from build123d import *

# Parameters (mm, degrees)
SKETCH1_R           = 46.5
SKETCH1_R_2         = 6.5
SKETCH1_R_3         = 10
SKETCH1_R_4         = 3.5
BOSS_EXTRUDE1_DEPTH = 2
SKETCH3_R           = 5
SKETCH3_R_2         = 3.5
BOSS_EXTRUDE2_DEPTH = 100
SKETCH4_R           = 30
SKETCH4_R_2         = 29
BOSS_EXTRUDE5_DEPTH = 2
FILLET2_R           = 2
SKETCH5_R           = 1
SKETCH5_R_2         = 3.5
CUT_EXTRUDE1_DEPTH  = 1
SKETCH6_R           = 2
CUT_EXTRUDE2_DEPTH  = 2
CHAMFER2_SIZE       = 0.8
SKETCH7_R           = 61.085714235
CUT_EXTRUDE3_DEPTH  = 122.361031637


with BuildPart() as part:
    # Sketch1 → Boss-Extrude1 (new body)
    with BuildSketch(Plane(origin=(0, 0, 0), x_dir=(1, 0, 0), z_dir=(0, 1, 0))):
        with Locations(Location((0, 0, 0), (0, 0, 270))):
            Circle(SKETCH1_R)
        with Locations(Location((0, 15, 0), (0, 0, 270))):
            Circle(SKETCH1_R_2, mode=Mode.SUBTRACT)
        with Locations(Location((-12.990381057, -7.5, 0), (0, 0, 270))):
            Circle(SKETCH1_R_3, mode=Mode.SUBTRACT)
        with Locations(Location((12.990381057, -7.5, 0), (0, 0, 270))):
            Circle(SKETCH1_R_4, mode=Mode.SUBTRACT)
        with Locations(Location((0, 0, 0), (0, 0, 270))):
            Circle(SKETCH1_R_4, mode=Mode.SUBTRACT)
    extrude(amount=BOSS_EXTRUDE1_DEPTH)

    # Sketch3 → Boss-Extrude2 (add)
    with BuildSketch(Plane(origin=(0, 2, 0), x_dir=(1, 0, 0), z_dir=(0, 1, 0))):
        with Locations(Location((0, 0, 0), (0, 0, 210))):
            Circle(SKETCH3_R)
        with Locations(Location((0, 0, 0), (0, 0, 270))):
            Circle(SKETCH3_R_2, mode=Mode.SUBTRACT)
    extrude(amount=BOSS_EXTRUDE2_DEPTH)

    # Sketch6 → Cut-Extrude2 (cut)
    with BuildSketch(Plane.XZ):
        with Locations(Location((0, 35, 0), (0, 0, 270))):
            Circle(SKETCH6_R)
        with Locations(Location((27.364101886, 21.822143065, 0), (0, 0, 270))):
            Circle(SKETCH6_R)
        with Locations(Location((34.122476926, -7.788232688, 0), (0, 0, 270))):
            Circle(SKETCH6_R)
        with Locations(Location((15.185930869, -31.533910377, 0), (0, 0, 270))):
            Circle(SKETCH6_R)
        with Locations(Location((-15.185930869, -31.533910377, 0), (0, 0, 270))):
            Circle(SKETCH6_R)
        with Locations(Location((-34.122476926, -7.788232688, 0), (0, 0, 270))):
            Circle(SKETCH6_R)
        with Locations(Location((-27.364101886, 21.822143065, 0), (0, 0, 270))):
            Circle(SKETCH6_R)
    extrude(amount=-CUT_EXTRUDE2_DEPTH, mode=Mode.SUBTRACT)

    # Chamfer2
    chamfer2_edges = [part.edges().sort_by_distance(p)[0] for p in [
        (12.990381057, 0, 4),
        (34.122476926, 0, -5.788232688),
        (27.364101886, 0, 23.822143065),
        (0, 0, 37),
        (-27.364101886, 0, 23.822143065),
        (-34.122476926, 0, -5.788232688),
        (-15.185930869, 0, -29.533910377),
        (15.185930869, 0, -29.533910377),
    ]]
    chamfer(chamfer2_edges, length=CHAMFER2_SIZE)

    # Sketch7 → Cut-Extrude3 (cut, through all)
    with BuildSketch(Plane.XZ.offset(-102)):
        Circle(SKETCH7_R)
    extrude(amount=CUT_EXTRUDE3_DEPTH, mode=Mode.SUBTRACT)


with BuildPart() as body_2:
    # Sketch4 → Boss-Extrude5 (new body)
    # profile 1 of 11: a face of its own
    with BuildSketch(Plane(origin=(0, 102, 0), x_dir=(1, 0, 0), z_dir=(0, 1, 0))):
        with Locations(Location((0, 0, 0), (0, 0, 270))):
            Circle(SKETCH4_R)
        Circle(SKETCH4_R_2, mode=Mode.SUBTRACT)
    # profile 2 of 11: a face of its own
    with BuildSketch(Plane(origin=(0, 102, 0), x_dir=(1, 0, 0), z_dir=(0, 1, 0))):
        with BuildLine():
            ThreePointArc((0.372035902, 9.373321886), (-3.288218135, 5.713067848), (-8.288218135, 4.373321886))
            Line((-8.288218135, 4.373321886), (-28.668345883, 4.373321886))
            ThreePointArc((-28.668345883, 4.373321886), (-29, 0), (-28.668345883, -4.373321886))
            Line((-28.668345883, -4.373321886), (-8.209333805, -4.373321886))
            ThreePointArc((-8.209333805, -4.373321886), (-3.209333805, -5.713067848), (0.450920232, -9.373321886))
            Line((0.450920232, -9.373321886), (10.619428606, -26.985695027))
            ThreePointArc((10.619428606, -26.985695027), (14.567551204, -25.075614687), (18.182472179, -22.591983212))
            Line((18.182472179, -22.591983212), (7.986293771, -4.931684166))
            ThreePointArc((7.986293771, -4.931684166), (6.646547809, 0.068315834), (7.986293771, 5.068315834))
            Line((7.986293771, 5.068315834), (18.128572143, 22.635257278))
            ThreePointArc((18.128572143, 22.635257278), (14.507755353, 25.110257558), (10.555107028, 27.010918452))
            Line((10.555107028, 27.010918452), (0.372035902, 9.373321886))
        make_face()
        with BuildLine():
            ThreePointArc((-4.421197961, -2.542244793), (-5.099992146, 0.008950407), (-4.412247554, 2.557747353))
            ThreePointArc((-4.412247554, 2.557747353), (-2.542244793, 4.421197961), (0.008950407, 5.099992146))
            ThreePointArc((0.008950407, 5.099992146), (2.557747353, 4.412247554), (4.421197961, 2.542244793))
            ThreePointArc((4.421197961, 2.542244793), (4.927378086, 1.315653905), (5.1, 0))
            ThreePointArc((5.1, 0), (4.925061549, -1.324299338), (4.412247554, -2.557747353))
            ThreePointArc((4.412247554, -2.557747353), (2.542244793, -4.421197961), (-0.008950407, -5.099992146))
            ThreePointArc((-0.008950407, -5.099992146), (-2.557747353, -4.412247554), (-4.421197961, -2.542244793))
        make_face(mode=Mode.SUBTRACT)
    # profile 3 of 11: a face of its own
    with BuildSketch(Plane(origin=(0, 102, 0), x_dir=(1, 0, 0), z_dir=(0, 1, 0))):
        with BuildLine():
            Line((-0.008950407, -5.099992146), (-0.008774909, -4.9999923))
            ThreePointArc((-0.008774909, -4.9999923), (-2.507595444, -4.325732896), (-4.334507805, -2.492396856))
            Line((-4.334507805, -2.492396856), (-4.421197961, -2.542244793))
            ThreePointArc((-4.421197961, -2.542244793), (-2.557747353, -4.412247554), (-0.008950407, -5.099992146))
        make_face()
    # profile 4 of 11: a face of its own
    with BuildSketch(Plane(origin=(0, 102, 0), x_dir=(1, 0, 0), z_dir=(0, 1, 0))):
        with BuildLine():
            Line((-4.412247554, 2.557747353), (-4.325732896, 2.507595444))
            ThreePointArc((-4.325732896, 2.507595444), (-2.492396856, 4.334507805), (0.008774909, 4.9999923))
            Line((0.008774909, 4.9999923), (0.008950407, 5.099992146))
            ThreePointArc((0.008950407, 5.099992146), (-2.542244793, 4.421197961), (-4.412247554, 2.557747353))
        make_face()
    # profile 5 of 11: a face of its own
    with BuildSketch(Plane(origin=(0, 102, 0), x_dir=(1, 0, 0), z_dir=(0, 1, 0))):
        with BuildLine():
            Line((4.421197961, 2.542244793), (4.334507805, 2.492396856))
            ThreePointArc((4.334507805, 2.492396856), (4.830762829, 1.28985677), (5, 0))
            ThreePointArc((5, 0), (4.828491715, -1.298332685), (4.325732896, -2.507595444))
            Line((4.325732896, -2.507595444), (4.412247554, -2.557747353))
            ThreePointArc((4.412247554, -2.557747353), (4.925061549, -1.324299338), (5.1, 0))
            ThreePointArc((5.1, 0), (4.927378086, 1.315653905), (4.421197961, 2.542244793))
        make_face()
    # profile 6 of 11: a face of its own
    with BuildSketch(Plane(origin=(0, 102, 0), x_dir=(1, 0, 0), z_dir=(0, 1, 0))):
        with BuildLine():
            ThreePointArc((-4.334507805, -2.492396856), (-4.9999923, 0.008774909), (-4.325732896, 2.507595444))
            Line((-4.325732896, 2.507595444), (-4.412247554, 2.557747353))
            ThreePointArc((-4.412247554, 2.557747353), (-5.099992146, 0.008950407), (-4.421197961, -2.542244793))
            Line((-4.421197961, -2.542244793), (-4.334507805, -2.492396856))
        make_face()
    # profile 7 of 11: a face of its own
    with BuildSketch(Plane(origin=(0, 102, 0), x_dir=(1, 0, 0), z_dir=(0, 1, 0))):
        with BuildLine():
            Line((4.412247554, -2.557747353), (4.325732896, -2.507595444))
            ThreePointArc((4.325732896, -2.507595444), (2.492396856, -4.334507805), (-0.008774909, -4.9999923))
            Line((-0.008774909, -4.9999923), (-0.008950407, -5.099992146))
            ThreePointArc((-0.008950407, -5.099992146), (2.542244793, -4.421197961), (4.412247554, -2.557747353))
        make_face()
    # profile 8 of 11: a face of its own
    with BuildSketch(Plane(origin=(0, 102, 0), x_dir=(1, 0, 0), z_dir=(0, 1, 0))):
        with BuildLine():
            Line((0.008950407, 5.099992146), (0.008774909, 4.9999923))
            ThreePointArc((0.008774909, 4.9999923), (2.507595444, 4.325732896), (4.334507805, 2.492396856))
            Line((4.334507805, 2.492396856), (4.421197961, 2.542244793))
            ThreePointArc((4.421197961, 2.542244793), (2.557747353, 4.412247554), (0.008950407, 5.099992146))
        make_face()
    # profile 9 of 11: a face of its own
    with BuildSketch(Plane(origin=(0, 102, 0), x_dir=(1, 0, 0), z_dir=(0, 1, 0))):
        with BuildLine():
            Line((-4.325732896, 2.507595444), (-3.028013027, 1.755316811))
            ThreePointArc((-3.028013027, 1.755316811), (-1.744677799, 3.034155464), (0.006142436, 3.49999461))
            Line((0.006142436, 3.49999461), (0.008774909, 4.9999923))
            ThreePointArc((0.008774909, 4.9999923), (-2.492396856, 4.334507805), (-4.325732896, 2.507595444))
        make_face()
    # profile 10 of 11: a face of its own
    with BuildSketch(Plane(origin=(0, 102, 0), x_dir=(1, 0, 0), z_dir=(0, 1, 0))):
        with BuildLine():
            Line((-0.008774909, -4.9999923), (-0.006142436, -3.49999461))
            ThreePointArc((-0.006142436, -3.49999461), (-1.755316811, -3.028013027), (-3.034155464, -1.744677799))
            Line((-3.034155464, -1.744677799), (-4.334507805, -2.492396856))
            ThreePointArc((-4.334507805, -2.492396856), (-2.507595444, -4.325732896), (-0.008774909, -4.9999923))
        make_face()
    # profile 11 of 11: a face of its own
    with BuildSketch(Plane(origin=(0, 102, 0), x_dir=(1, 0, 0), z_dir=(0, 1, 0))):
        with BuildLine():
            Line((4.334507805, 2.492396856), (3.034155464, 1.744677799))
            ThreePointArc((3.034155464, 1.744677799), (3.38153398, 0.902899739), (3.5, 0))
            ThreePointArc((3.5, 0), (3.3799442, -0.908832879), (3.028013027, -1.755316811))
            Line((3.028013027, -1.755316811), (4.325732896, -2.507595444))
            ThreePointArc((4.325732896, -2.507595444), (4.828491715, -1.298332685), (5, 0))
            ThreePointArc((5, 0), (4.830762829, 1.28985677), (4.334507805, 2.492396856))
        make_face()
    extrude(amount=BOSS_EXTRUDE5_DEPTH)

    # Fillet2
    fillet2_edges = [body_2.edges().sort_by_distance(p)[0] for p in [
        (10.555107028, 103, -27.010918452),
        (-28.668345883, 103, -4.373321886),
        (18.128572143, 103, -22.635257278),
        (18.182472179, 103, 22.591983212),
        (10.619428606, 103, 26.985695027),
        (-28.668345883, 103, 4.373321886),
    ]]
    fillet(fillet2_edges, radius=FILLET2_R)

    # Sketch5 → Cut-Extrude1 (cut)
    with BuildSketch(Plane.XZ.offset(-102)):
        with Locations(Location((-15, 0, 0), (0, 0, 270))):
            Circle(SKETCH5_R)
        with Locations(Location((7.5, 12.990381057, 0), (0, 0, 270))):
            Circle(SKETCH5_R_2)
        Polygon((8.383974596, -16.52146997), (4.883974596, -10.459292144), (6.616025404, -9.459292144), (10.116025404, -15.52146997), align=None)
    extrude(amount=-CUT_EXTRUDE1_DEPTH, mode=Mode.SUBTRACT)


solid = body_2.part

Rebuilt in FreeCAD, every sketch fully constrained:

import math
import FreeCAD as App
import Part
import Sketcher
from FreeCAD import Vector
Q = App.Units.Quantity


def edges_at(feature, points):
    """Names of the edges that pass closest to the given points."""
    edges = feature.Shape.Edges
    near = lambda p: min(range(len(edges)), key=lambda i: edges[i].distToShape(Part.Vertex(*p))[0])
    return sorted({f"Edge{near(p) + 1}" for p in points})


def add_polygon(sketch, points):
    """Adds a closed chain of lines whose ends are joined by coincident constraints."""
    first, n = sketch.GeometryCount, len(points)
    for a, b in zip(points, points[1:] + points[:1]):
        sketch.addGeometry(Part.LineSegment(App.Vector(*a, 0), App.Vector(*b, 0)), False)
    for i in range(n):
        sketch.addConstraint(Sketcher.Constraint("Coincident", first + i, 2, first + (i + 1) % n, 1))

doc = App.newDocument("Part")
params = doc.addObject("Spreadsheet::Sheet", "Params")
for row, (alias, value) in enumerate([
    ("sketch1_diameter", "93 mm"),
    ("sketch1_diameter2", "20 mm"),
    ("sketch1_diameter3", "13 mm"),
    ("sketch1_diameter4", "7 mm"),
    ("pad1_length", "2 mm"),
    ("sketch2_diameter", "10 mm"),
    ("sketch2_diameter2", "7 mm"),
    ("pad2_length", "100 mm"),
    ("sketch3_diameter", "4 mm"),
    ("pocket1_length", "2 mm"),
    ("chamfer_size", "0.8 mm"),
    ("sketch5_diameter", "60 mm"),
    ("sketch5_radius", "29 mm"),
    ("sketch5_radius2", "10 mm"),
    ("sketch5_radius3", "5 mm"),
    ("sketch5_radius4", "3.5 mm"),
    ("pad3_length", "2 mm"),
    ("fillet_radius", "2 mm"),
    ("sketch6_diameter", "2 mm"),
    ("sketch6_diameter2", "7 mm"),
    ("sketch6_length", "7 mm"),
    ("sketch6_length2", "2 mm"),
    ("pocket3_length", "1 mm"),
], start=1):
    params.set(f"A{row}", alias)
    params.set(f"B{row}", "=" + value)
    params.setAlias(f"B{row}", alias)

body = doc.addObject("PartDesign::Body", "Body")

# Sketch on XZ plane
sketch1 = doc.addObject("Sketcher::SketchObject", "Sketch")
body.addObject(sketch1)
sketch1.AttachmentSupport = (doc.XZ_Plane, [""])
sketch1.MapMode = "FlatFace"
sketch1.addGeometry([
    Part.Circle(Vector(0, 0, 0), Vector(0, 0, 1), 46.5),  # 0
    Part.Circle(Vector(-13, 7.5, 0), Vector(0, 0, 1), 10),  # 1
    Part.Circle(Vector(0, -15, 0), Vector(0, 0, 1), 6.5),  # 2
    Part.Circle(Vector(0, 0, 0), Vector(0, 0, 1), 3.5),  # 3
    Part.Circle(Vector(13, 7.5, 0), Vector(0, 0, 1), 3.5),  # 4
], False)
sketch1.addConstraint([
    Sketcher.Constraint("Coincident", 0, 3, -1, 1),
    Sketcher.Constraint("Coincident", 3, 3, -1, 1),
    Sketcher.Constraint("Equal", 3, 4),
    Sketcher.Constraint("Symmetric", 1, 3, 4, 3, -2),
    Sketcher.Constraint("PointOnObject", 2, 3, -2),
    Sketcher.Constraint("Diameter", 0, Q("93 mm")),
    Sketcher.Constraint("Diameter", 1, Q("20 mm")),
    Sketcher.Constraint("Diameter", 2, Q("13 mm")),
    Sketcher.Constraint("Diameter", 3, Q("7 mm")),
    Sketcher.Constraint("DistanceY", 2, 3, -1, 1, Q("15 mm")),
    Sketcher.Constraint("DistanceY", -1, 1, 1, 3, Q("7.5 mm")),
    Sketcher.Constraint("DistanceX", 1, 3, -1, 1, Q("12.990381 mm")),
])
sketch1.setExpression("Constraints[5]", "Params.sketch1_diameter")
sketch1.setExpression("Constraints[6]", "Params.sketch1_diameter2")
sketch1.setExpression("Constraints[7]", "Params.sketch1_diameter3")
sketch1.setExpression("Constraints[8]", "Params.sketch1_diameter4")
pad1 = doc.addObject("PartDesign::Pad", "Pad")
body.addObject(pad1)
pad1.Profile = sketch1
pad1.setExpression("Length", "Params.pad1_length")
pad1.Reversed = True

# Sketch on XZ plane
sketch2 = doc.addObject("Sketcher::SketchObject", "Sketch001")
body.addObject(sketch2)
sketch2.AttachmentSupport = (doc.XZ_Plane, [""])
sketch2.MapMode = "FlatFace"
sketch2.AttachmentOffset = App.Placement(Vector(0, 0, -2), App.Rotation())
sketch2.addGeometry([
    Part.Circle(Vector(0, 0, 0), Vector(0, 0, 1), 5),
    Part.Circle(Vector(0, 0, 0), Vector(0, 0, 1), 3.5),
], False)
sketch2.addConstraint([
    Sketcher.Constraint("Coincident", 0, 3, -1, 1),
    Sketcher.Constraint("Coincident", 1, 3, -1, 1),
    Sketcher.Constraint("Diameter", 0, Q("10 mm")),
    Sketcher.Constraint("Diameter", 1, Q("7 mm")),
])
sketch2.setExpression("Constraints[2]", "Params.sketch2_diameter")
sketch2.setExpression("Constraints[3]", "Params.sketch2_diameter2")
pad2 = doc.addObject("PartDesign::Pad", "Pad001")
body.addObject(pad2)
pad2.Profile = sketch2
pad2.setExpression("Length", "Params.pad2_length")
pad2.Reversed = True

# Sketch on XZ plane
sketch3 = doc.addObject("Sketcher::SketchObject", "Sketch002")
body.addObject(sketch3)
sketch3.AttachmentSupport = (doc.XZ_Plane, [""])
sketch3.MapMode = "FlatFace"
sketch3.addGeometry([
    Part.Circle(Vector(0, 35, 0), Vector(0, 0, 1), 2),  # 0
    Part.Circle(Vector(27.4, 21.8, 0), Vector(0, 0, 1), 2),  # 1
    Part.Circle(Vector(34.1, -7.8, 0), Vector(0, 0, 1), 2),  # 2
    Part.Circle(Vector(15.2, -31.5, 0), Vector(0, 0, 1), 2),  # 3
    Part.Circle(Vector(-15.2, -31.5, 0), Vector(0, 0, 1), 2),  # 4
    Part.Circle(Vector(-34.1, -7.8, 0), Vector(0, 0, 1), 2),  # 5
    Part.Circle(Vector(-27.4, 21.8, 0), Vector(0, 0, 1), 2),  # 6
], False)
sketch3.addConstraint([
    Sketcher.Constraint("Equal", 0, 1),
    Sketcher.Constraint("Equal", 1, 2),
    Sketcher.Constraint("Equal", 2, 3),
    Sketcher.Constraint("Equal", 3, 4),
    Sketcher.Constraint("Equal", 4, 5),
    Sketcher.Constraint("Equal", 5, 6),
    Sketcher.Constraint("Symmetric", 3, 3, 4, 3, -2),
    Sketcher.Constraint("Symmetric", 2, 3, 5, 3, -2),
    Sketcher.Constraint("Symmetric", 1, 3, 6, 3, -2),
    Sketcher.Constraint("PointOnObject", 0, 3, -2),
    Sketcher.Constraint("Diameter", 0, Q("4 mm")),
    Sketcher.Constraint("DistanceY", -1, 1, 0, 3, Q("35 mm")),
    Sketcher.Constraint("DistanceX", -1, 1, 1, 3, Q("27.364102 mm")),
    Sketcher.Constraint("DistanceX", -1, 1, 3, 3, Q("15.185931 mm")),
    Sketcher.Constraint("DistanceY", 3, 3, -1, 1, Q("31.53391 mm")),
    Sketcher.Constraint("DistanceX", 5, 3, 1, 3, Q("61.486579 mm")),
    Sketcher.Constraint("DistanceY", -1, 1, 1, 3, Q("21.822143 mm")),
    Sketcher.Constraint("DistanceY", 2, 3, -1, 1, Q("7.788233 mm")),
])
sketch3.setExpression("Constraints[10]", "Params.sketch3_diameter")
pocket1 = doc.addObject("PartDesign::Pocket", "Pocket")
body.addObject(pocket1)
pocket1.Profile = sketch3
pocket1.setExpression("Length", "Params.pocket1_length")
doc.recompute()

chamfer = doc.addObject("PartDesign::Chamfer", "Chamfer")
body.addObject(chamfer)
chamfer.Base = (pocket1, edges_at(pocket1, [
    (12.99, 0, 4),
    (34.122, 0, -5.788),
    (27.364, 0, 23.822),
    (0, 0, 37),
    (-27.364, 0, 23.822),
    (-34.122, 0, -5.788),
    (-15.186, 0, -29.534),
    (15.186, 0, -29.534),
]))
chamfer.setExpression("Size", "Params.chamfer_size")

# Sketch on XZ plane
sketch4 = doc.addObject("Sketcher::SketchObject", "Sketch003")
body.addObject(sketch4)
sketch4.AttachmentSupport = (doc.XZ_Plane, [""])
sketch4.MapMode = "FlatFace"
sketch4.AttachmentOffset = App.Placement(Vector(0, 0, -102), App.Rotation())
sketch4.addGeometry(Part.Circle(Vector(0, 0, 0), Vector(0, 0, 1), 61), False)
sketch4.addConstraint([
    Sketcher.Constraint("Coincident", 0, 3, -1, 1),
    Sketcher.Constraint("Diameter", 0, Q("122.171428 mm")),
])
pocket2 = doc.addObject("PartDesign::Pocket", "Pocket001")
body.addObject(pocket2)
pocket2.Profile = sketch4
pocket2.Type = "ThroughAll"
pocket2.Reversed = True
body2 = doc.addObject("PartDesign::Body", "Body001")

# Sketch on XZ plane
sketch5 = doc.addObject("Sketcher::SketchObject", "Sketch004")
body2.addObject(sketch5)
sketch5.AttachmentSupport = (doc.getObject("XZ_Plane001"), [""])
sketch5.MapMode = "FlatFace"
sketch5.AttachmentOffset = App.Placement(Vector(0, 0, -102), App.Rotation())
sketch5.addGeometry([
    Part.Circle(Vector(0, 0, 0), Vector(0, 0, 1), 30),  # 0
    Part.ArcOfCircle(Part.Circle(Vector(0, 0, 0), Vector(0, 0, 1), 29), math.radians(-51), math.radians(51)),  # 1
    Part.LineSegment(Vector(18.2, 22.6, 0), Vector(8, 4.9, 0)),  # 2
    Part.ArcOfCircle(Part.Circle(Vector(16.6, -0.1, 0), Vector(0, 0, 1), 10), math.radians(150), math.radians(210)),  # 3
    Part.LineSegment(Vector(8, -5.1, 0), Vector(18.1, -22.6, 0)),  # 4
    Part.ArcOfCircle(Part.Circle(Vector(0, 0, 0), Vector(0, 0, 1), 29), math.radians(-171), math.radians(-69)),  # 5
    Part.LineSegment(Vector(10.6, -27, 0), Vector(0.4, -9.4, 0)),  # 6
    Part.ArcOfCircle(Part.Circle(Vector(-8.3, -14.4, 0), Vector(0, 0, 1), 10), math.radians(30), math.radians(90)),  # 7
    Part.LineSegment(Vector(-8.3, -4.4, 0), Vector(-28.7, -4.4, 0)),  # 8
    Part.ArcOfCircle(Part.Circle(Vector(0, 0, 0), Vector(0, 0, 1), 29), math.radians(69), math.radians(171)),  # 9
    Part.LineSegment(Vector(-28.7, 4.4, 0), Vector(-8.2, 4.4, 0)),  # 10
    Part.ArcOfCircle(Part.Circle(Vector(-8.2, 14.4, 0), Vector(0, 0, 1), 10), math.radians(-90), math.radians(-30)),  # 11
    Part.LineSegment(Vector(0.5, 9.4, 0), Vector(10.6, 27, 0)),  # 12
    Part.ArcOfCircle(Part.Circle(Vector(0, 0, 0), Vector(0, 0, 1), 5), math.radians(150), math.radians(210)),  # 13
    Part.LineSegment(Vector(-4.3, -2.5, 0), Vector(-3, -1.8, 0)),  # 14
    Part.ArcOfCircle(Part.Circle(Vector(0, 0, 0), Vector(0, 0, 1), 3.5), math.radians(-150), math.radians(-90)),  # 15
    Part.LineSegment(Vector(0, -3.5, 0), Vector(0, -5, 0)),  # 16
    Part.ArcOfCircle(Part.Circle(Vector(0, 0, 0), Vector(0, 0, 1), 5), math.radians(-90), math.radians(-30)),  # 17
    Part.LineSegment(Vector(4.3, -2.5, 0), Vector(3, -1.7, 0)),  # 18
    Part.ArcOfCircle(Part.Circle(Vector(0, 0, 0), Vector(0, 0, 1), 3.5), math.radians(-30), math.radians(0)),  # 19
    Part.ArcOfCircle(Part.Circle(Vector(0, 0, 0), Vector(0, 0, 1), 3.5), math.radians(0), math.radians(30)),  # 20
    Part.LineSegment(Vector(3, 1.8, 0), Vector(4.3, 2.5, 0)),  # 21
    Part.ArcOfCircle(Part.Circle(Vector(0, 0, 0), Vector(0, 0, 1), 5), math.radians(30), math.radians(90)),  # 22
    Part.LineSegment(Vector(0, 5, 0), Vector(0, 3.5, 0)),  # 23
    Part.ArcOfCircle(Part.Circle(Vector(0, 0, 0), Vector(0, 0, 1), 3.5), math.radians(90), math.radians(150)),  # 24
    Part.LineSegment(Vector(-3, 1.7, 0), Vector(-4.3, 2.5, 0)),  # 25
], False)
sketch5.addConstraint([
    Sketcher.Constraint("Coincident", 1, 2, 2, 1),
    Sketcher.Constraint("Tangent", 2, 2, 3, 1),
    Sketcher.Constraint("Tangent", 3, 2, 4, 1),
    Sketcher.Constraint("Coincident", 4, 2, 1, 1),
    Sketcher.Constraint("Coincident", 5, 2, 6, 1),
    Sketcher.Constraint("Tangent", 6, 2, 7, 1),
    Sketcher.Constraint("Tangent", 7, 2, 8, 1),
    Sketcher.Constraint("Coincident", 8, 2, 5, 1),
    Sketcher.Constraint("Coincident", 9, 2, 10, 1),
    Sketcher.Constraint("Tangent", 10, 2, 11, 1),
    Sketcher.Constraint("Tangent", 11, 2, 12, 1),
    Sketcher.Constraint("Coincident", 12, 2, 9, 1),
    Sketcher.Constraint("Coincident", 13, 2, 14, 1),
    Sketcher.Constraint("Coincident", 14, 2, 15, 1),
    Sketcher.Constraint("Coincident", 15, 2, 16, 1),
    Sketcher.Constraint("Coincident", 16, 2, 17, 1),
    Sketcher.Constraint("Coincident", 17, 2, 18, 1),
    Sketcher.Constraint("Coincident", 18, 2, 19, 1),
    Sketcher.Constraint("Tangent", 19, 2, 20, 1),
    Sketcher.Constraint("Coincident", 20, 2, 21, 1),
    Sketcher.Constraint("Coincident", 21, 2, 22, 1),
    Sketcher.Constraint("Coincident", 22, 2, 23, 1),
    Sketcher.Constraint("Coincident", 23, 2, 24, 1),
    Sketcher.Constraint("Coincident", 24, 2, 25, 1),
    Sketcher.Constraint("Coincident", 25, 2, 13, 1),
    Sketcher.Constraint("Horizontal", 8),
    Sketcher.Constraint("Horizontal", 10),
    Sketcher.Constraint("Coincident", 0, 3, -1, 1),
    Sketcher.Constraint("Coincident", 1, 3, -1, 1),
    Sketcher.Constraint("Coincident", 5, 3, -1, 1),
    Sketcher.Constraint("Coincident", 9, 3, -1, 1),
    Sketcher.Constraint("Coincident", 13, 3, -1, 1),
    Sketcher.Constraint("Coincident", 15, 3, -1, 1),
    Sketcher.Constraint("Coincident", 17, 3, -1, 1),
    Sketcher.Constraint("Coincident", 19, 3, -1, 1),
    Sketcher.Constraint("Coincident", 22, 3, -1, 1),
    Sketcher.Constraint("Coincident", 24, 3, -1, 1),
    Sketcher.Constraint("Equal", 1, 5),
    Sketcher.Constraint("Equal", 3, 7),
    Sketcher.Constraint("Equal", 5, 9),
    Sketcher.Constraint("Equal", 7, 11),
    Sketcher.Constraint("Equal", 13, 17),
    Sketcher.Constraint("Equal", 15, 19),
    Sketcher.Constraint("Equal", 19, 20),
    Sketcher.Constraint("Equal", 17, 22),
    Sketcher.Constraint("Equal", 20, 24),
    Sketcher.Constraint("PointOnObject", 19, 2, -1),
    Sketcher.Constraint("Parallel", 4, 6),
    Sketcher.Constraint("Parallel", 2, 12),
    Sketcher.Constraint("Parallel", 14, 21),
    Sketcher.Constraint("Parallel", 16, 23),
    Sketcher.Constraint("Parallel", 18, 25),
    Sketcher.Constraint("Vertical", 2, 2, 3, 2),
    Sketcher.Constraint("Vertical", 8, 2, 9, 2),
    Sketcher.Constraint("Diameter", 0, Q("60 mm")),
    Sketcher.Constraint("Radius", 1, Q("29 mm")),
    Sketcher.Constraint("Radius", 3, Q("10 mm")),
    Sketcher.Constraint("Radius", 13, Q("5 mm")),
    Sketcher.Constraint("Radius", 15, Q("3.5 mm")),
    Sketcher.Constraint("Angle", 2, Q("-120 deg")),
    Sketcher.Constraint("DistanceY", 3, 3, 1, 2, Q("22.660299 mm")),
    Sketcher.Constraint("DistanceX", 8, 2, 8, 1, Q("20.380128 mm")),
    Sketcher.Constraint("DistanceX", 10, 1, 10, 2, Q("20.459012 mm")),
    Sketcher.Constraint("DistanceX", 7, 3, -1, 1, Q("8.288218 mm")),
    Sketcher.Constraint("DistanceY", 11, 3, 1, 2, Q("8.218661 mm")),
    Sketcher.Constraint("DistanceX", 13, 2, 14, 2, Q("1.29772 mm")),
    Sketcher.Constraint("DistanceX", 16, 2, 6, 2, Q("0.363261 mm")),
    Sketcher.Constraint("DistanceY", 3, 2, 17, 2, Q("2.575919 mm")),
    Sketcher.Constraint("DistanceY", 17, 2, 18, 2, Q("0.747719 mm")),
    Sketcher.Constraint("DistanceX", 21, 2, 2, 2, Q("3.660561 mm")),
    Sketcher.Constraint("DistanceX", 13, 2, -1, 1, Q("4.325733 mm")),
    Sketcher.Constraint("DistanceX", -1, 1, 15, 2, Q("0.006142 mm")),
    Sketcher.Constraint("DistanceX", 22, 2, -1, 1, Q("0.008775 mm")),
    Sketcher.Constraint("DistanceX", 24, 2, -1, 1, Q("3.034155 mm")),
])
sketch5.setExpression("Constraints[54]", "Params.sketch5_diameter")
sketch5.setExpression("Constraints[55]", "Params.sketch5_radius")
sketch5.setExpression("Constraints[56]", "Params.sketch5_radius2")
sketch5.setExpression("Constraints[57]", "Params.sketch5_radius3")
sketch5.setExpression("Constraints[58]", "Params.sketch5_radius4")
pad3 = doc.addObject("PartDesign::Pad", "Pad002")
body2.addObject(pad3)
pad3.Profile = sketch5
pad3.setExpression("Length", "Params.pad3_length")
pad3.Reversed = True
doc.recompute()

fillet = doc.addObject("PartDesign::Fillet", "Fillet")
body2.addObject(fillet)
fillet.Base = (pad3, edges_at(pad3, [
    (10.555, 103, -27.011),
    (-28.668, 103, -4.373),
    (18.129, 103, -22.635),
    (18.182, 103, 22.592),
    (10.619, 103, 26.986),
    (-28.668, 103, 4.373),
]))
fillet.setExpression("Radius", "Params.fillet_radius")

# Sketch on XZ plane
sketch6 = doc.addObject("Sketcher::SketchObject", "Sketch005")
body2.addObject(sketch6)
sketch6.AttachmentSupport = (doc.getObject("XZ_Plane001"), [""])
sketch6.MapMode = "FlatFace"
sketch6.AttachmentOffset = App.Placement(Vector(0, 0, -102), App.Rotation())
sketch6.addGeometry(Part.Circle(Vector(-15, 0, 0), Vector(0, 0, 1), 1), False)  # 0
sketch6.addGeometry(Part.Circle(Vector(7.5, 13, 0), Vector(0, 0, 1), 3.5), False)  # 1
add_polygon(sketch6, [(4.9, -10.5), (8.4, -16.5), (10.1, -15.5), (6.6, -9.5)])  # lines 2-5
sketch6.addConstraint([
    Sketcher.Constraint("PointOnObject", 0, 3, -1),
    Sketcher.Constraint("Perpendicular", 2, 3),
    Sketcher.Constraint("Perpendicular", 3, 4),
    Sketcher.Constraint("Perpendicular", 4, 5),
    Sketcher.Constraint("Diameter", 0, Q("2 mm")),
    Sketcher.Constraint("Diameter", 1, Q("7 mm")),
    Sketcher.Constraint("Angle", 2, Q("-60 deg")),
    Sketcher.Constraint("Distance", 2, Q("7 mm")),
    Sketcher.Constraint("Distance", 3, Q("2 mm")),
    Sketcher.Constraint("DistanceX", 0, 3, -1, 1, Q("15 mm")),
    Sketcher.Constraint("DistanceX", -1, 1, 1, 3, Q("7.5 mm")),
    Sketcher.Constraint("DistanceY", -1, 1, 1, 3, Q("12.990381 mm")),
    Sketcher.Constraint("DistanceY", 2, 2, -1, 1, Q("16.52147 mm")),
    Sketcher.Constraint("DistanceX", -1, 1, 2, 2, Q("8.383975 mm")),
])
sketch6.setExpression("Constraints[8]", "Params.sketch6_diameter")
sketch6.setExpression("Constraints[9]", "Params.sketch6_diameter2")
sketch6.setExpression("Constraints[11]", "Params.sketch6_length")
sketch6.setExpression("Constraints[12]", "Params.sketch6_length2")
pocket3 = doc.addObject("PartDesign::Pocket", "Pocket002")
body2.addObject(pocket3)
pocket3.Profile = sketch6
pocket3.setExpression("Length", "Params.pocket3_length")

doc.recompute()
